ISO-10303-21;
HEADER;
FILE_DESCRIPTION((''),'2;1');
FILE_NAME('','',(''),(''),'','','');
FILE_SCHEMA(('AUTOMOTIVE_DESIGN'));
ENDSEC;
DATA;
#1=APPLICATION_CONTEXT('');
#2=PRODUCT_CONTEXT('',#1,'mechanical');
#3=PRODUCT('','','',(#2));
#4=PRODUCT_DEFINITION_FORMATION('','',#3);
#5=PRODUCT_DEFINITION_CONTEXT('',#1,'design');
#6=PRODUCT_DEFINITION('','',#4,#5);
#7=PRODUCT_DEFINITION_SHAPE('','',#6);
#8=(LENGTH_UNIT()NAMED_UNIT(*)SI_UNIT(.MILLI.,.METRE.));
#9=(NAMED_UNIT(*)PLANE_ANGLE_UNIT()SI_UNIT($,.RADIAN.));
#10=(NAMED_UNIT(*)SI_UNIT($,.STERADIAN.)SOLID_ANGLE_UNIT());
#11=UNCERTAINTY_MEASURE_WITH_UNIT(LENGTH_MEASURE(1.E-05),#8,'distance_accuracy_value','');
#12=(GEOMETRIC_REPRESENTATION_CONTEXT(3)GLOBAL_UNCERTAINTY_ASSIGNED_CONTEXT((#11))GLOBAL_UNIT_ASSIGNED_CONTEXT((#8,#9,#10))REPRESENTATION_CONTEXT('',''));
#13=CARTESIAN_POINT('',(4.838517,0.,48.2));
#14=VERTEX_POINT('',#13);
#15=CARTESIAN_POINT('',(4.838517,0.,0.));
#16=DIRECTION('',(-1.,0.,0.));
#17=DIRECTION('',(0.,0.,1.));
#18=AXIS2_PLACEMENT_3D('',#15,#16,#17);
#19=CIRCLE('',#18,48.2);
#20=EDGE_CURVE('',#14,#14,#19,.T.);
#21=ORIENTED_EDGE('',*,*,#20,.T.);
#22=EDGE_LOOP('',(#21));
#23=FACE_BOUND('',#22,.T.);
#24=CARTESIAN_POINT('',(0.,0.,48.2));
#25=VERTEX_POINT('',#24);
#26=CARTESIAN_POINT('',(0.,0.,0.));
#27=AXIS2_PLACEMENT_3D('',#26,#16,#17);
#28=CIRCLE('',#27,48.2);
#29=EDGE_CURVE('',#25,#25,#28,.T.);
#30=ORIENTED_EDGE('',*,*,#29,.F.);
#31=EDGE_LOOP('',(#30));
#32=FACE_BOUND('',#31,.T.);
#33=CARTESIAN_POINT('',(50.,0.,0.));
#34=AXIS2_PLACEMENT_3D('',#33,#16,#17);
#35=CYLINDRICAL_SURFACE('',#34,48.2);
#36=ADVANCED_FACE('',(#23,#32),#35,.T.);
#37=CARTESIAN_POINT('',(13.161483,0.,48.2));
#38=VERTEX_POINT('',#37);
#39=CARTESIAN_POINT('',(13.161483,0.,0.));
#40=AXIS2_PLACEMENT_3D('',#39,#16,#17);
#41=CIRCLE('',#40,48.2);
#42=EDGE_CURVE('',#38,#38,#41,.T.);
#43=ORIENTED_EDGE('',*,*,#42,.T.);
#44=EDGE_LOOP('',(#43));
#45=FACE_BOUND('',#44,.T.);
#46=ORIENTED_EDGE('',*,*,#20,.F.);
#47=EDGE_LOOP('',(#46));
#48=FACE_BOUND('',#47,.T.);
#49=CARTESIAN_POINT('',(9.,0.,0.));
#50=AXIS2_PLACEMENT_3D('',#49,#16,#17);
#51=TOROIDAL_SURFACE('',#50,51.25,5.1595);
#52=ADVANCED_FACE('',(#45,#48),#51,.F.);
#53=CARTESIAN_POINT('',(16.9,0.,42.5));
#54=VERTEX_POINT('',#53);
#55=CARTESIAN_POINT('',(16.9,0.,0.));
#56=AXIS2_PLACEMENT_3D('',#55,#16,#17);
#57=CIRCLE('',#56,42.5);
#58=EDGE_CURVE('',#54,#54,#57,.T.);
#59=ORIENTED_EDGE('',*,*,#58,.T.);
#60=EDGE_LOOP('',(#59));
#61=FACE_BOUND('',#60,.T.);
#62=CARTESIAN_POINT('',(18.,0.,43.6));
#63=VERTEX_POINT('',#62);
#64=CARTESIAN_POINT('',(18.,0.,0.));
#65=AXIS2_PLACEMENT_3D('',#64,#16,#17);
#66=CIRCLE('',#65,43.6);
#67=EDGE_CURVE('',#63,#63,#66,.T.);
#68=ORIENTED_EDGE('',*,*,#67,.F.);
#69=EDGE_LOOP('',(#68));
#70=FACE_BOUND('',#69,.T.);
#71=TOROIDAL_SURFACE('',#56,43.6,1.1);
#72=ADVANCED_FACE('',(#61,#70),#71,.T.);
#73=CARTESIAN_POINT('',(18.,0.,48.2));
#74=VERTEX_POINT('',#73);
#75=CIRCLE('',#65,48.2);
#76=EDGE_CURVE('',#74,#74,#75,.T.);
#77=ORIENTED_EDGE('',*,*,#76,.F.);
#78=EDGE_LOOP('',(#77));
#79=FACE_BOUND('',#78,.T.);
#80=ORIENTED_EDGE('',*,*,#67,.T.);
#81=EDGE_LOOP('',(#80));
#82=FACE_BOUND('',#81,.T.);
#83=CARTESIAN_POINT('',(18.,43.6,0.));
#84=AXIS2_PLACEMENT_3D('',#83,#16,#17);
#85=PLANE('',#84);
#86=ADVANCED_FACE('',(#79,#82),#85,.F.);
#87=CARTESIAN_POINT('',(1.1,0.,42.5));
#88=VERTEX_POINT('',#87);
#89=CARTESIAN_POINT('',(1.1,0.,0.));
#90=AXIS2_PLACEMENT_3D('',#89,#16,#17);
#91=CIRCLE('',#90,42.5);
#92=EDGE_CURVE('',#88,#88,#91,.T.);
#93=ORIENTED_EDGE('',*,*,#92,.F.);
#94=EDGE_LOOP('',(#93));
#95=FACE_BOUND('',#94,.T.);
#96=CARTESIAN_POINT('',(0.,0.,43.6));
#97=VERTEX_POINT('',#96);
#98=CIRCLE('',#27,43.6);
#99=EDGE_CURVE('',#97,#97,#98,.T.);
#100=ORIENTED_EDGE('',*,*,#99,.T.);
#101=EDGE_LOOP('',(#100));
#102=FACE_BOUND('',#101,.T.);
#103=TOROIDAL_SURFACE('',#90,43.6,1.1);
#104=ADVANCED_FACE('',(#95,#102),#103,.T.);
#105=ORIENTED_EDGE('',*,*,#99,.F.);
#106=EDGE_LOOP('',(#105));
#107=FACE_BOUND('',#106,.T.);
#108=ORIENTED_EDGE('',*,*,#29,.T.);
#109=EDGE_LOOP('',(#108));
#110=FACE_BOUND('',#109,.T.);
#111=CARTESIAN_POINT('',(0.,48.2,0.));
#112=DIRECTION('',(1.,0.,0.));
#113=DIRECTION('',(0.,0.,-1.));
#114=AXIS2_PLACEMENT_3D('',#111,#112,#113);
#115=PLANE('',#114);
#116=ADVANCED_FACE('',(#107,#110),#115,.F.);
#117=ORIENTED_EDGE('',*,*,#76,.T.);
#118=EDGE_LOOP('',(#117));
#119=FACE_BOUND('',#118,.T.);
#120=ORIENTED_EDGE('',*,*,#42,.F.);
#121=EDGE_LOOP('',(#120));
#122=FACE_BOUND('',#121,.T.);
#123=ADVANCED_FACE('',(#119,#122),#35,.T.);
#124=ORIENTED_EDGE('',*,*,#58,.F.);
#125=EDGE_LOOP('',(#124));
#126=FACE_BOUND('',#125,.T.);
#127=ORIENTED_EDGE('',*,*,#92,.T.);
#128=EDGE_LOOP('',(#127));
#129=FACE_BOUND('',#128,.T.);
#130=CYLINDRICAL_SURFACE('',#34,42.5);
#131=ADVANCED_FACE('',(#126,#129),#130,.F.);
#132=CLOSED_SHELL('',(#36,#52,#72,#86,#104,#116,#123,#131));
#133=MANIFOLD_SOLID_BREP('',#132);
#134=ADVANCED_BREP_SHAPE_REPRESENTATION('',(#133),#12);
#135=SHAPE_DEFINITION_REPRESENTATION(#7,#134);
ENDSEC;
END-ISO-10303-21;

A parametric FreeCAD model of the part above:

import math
import FreeCAD as App
import Part
import Sketcher

V = App.Vector

doc = App.newDocument("Part")
params = doc.addObject("Spreadsheet::Sheet", "Params")
for row, (alias, value) in enumerate([
    ("sketch1_radius", "1.1 mm"),
    ("sketch1_width", "15.8 mm"),
    ("sketch1_height", "4.6 mm"),
    ("revolution_angle", "360 deg"),
], start=1):
    params.set(f"A{row}", alias)
    params.set(f"B{row}", "=" + value)
    params.setAlias(f"B{row}", alias)

body = doc.addObject("PartDesign::Body", "Body")

# Sketch on XY plane
sketch1 = body.newObject("Sketcher::SketchObject", "Sketch")
sketch1.AttachmentSupport = (doc.getObject("XY_Plane"), [""])
sketch1.MapMode = "FlatFace"
sketch1.addGeometry([
    Part.LineSegment(V(1.1, 42.5, 0), V(16.9, 42.5, 0)),  # 0
    Part.ArcOfCircle(Part.Circle(V(16.9, 43.6, 0), V(0, 0, 1), 1.1), math.radians(-90), math.radians(0)),  # 1
    Part.LineSegment(V(18, 43.6, 0), V(18, 48.2, 0)),  # 2
    Part.LineSegment(V(18, 48.2, 0), V(13.161483, 48.2, 0)),  # 3
    Part.ArcOfCircle(Part.Circle(V(9, 51.25, 0), V(0, 0, 1), 5.1595), math.radians(-143.761871), math.radians(-36.238129)),  # 4
    Part.LineSegment(V(4.838517, 48.2, 0), V(0, 48.2, 0)),  # 5
    Part.LineSegment(V(0, 48.2, 0), V(0, 43.6, 0)),  # 6
    Part.ArcOfCircle(Part.Circle(V(1.1, 43.6, 0), V(0, 0, 1), 1.1), math.radians(-180), math.radians(-90)),  # 7
], False)
sketch1.addConstraint([
    Sketcher.Constraint("Tangent", 0, 2, 1, 1),
    Sketcher.Constraint("Tangent", 1, 2, 2, 1),
    Sketcher.Constraint("Coincident", 2, 2, 3, 1),
    Sketcher.Constraint("Coincident", 3, 2, 4, 2),
    Sketcher.Constraint("Coincident", 4, 1, 5, 1),
    Sketcher.Constraint("Coincident", 5, 2, 6, 1),
    Sketcher.Constraint("Tangent", 6, 2, 7, 1),
    Sketcher.Constraint("Tangent", 7, 2, 0, 1),
    Sketcher.Constraint("Horizontal", 0),
    Sketcher.Constraint("Vertical", 2),
    Sketcher.Constraint("Horizontal", 3),
    Sketcher.Constraint("Horizontal", 5),
    Sketcher.Constraint("Vertical", 6),
    Sketcher.Constraint("Equal", 1, 7),
    Sketcher.Constraint("PointOnObject", 5, 2, -2),
    Sketcher.Constraint("Horizontal", 3, 2, 4, 1),
    Sketcher.Constraint("Equal", 3, 5),
    Sketcher.Constraint("Radius", 1, 1.1),
    Sketcher.Constraint("DistanceX", 0, 1, 0, 2, 15.8),
    Sketcher.Constraint("DistanceY", 2, 1, 2, 2, 4.6),
    Sketcher.Constraint("DistanceY", -1, 1, 1, 3, 43.6),
    Sketcher.Constraint("Radius", 4, 5.1595),
    Sketcher.Constraint("DistanceY", -1, 1, 4, 3, 51.25),
])
sketch1.setExpression("Constraints[17]", "Params.sketch1_radius")
sketch1.setExpression("Constraints[18]", "Params.sketch1_width")
sketch1.setExpression("Constraints[19]", "Params.sketch1_height")
revolution = body.newObject("PartDesign::Revolution", "Revolution")
revolution.Profile = sketch1
revolution.ReferenceAxis = (sketch1, ["H_Axis"])
revolution.setExpression("Angle", "Params.revolution_angle")

doc.recompute()
